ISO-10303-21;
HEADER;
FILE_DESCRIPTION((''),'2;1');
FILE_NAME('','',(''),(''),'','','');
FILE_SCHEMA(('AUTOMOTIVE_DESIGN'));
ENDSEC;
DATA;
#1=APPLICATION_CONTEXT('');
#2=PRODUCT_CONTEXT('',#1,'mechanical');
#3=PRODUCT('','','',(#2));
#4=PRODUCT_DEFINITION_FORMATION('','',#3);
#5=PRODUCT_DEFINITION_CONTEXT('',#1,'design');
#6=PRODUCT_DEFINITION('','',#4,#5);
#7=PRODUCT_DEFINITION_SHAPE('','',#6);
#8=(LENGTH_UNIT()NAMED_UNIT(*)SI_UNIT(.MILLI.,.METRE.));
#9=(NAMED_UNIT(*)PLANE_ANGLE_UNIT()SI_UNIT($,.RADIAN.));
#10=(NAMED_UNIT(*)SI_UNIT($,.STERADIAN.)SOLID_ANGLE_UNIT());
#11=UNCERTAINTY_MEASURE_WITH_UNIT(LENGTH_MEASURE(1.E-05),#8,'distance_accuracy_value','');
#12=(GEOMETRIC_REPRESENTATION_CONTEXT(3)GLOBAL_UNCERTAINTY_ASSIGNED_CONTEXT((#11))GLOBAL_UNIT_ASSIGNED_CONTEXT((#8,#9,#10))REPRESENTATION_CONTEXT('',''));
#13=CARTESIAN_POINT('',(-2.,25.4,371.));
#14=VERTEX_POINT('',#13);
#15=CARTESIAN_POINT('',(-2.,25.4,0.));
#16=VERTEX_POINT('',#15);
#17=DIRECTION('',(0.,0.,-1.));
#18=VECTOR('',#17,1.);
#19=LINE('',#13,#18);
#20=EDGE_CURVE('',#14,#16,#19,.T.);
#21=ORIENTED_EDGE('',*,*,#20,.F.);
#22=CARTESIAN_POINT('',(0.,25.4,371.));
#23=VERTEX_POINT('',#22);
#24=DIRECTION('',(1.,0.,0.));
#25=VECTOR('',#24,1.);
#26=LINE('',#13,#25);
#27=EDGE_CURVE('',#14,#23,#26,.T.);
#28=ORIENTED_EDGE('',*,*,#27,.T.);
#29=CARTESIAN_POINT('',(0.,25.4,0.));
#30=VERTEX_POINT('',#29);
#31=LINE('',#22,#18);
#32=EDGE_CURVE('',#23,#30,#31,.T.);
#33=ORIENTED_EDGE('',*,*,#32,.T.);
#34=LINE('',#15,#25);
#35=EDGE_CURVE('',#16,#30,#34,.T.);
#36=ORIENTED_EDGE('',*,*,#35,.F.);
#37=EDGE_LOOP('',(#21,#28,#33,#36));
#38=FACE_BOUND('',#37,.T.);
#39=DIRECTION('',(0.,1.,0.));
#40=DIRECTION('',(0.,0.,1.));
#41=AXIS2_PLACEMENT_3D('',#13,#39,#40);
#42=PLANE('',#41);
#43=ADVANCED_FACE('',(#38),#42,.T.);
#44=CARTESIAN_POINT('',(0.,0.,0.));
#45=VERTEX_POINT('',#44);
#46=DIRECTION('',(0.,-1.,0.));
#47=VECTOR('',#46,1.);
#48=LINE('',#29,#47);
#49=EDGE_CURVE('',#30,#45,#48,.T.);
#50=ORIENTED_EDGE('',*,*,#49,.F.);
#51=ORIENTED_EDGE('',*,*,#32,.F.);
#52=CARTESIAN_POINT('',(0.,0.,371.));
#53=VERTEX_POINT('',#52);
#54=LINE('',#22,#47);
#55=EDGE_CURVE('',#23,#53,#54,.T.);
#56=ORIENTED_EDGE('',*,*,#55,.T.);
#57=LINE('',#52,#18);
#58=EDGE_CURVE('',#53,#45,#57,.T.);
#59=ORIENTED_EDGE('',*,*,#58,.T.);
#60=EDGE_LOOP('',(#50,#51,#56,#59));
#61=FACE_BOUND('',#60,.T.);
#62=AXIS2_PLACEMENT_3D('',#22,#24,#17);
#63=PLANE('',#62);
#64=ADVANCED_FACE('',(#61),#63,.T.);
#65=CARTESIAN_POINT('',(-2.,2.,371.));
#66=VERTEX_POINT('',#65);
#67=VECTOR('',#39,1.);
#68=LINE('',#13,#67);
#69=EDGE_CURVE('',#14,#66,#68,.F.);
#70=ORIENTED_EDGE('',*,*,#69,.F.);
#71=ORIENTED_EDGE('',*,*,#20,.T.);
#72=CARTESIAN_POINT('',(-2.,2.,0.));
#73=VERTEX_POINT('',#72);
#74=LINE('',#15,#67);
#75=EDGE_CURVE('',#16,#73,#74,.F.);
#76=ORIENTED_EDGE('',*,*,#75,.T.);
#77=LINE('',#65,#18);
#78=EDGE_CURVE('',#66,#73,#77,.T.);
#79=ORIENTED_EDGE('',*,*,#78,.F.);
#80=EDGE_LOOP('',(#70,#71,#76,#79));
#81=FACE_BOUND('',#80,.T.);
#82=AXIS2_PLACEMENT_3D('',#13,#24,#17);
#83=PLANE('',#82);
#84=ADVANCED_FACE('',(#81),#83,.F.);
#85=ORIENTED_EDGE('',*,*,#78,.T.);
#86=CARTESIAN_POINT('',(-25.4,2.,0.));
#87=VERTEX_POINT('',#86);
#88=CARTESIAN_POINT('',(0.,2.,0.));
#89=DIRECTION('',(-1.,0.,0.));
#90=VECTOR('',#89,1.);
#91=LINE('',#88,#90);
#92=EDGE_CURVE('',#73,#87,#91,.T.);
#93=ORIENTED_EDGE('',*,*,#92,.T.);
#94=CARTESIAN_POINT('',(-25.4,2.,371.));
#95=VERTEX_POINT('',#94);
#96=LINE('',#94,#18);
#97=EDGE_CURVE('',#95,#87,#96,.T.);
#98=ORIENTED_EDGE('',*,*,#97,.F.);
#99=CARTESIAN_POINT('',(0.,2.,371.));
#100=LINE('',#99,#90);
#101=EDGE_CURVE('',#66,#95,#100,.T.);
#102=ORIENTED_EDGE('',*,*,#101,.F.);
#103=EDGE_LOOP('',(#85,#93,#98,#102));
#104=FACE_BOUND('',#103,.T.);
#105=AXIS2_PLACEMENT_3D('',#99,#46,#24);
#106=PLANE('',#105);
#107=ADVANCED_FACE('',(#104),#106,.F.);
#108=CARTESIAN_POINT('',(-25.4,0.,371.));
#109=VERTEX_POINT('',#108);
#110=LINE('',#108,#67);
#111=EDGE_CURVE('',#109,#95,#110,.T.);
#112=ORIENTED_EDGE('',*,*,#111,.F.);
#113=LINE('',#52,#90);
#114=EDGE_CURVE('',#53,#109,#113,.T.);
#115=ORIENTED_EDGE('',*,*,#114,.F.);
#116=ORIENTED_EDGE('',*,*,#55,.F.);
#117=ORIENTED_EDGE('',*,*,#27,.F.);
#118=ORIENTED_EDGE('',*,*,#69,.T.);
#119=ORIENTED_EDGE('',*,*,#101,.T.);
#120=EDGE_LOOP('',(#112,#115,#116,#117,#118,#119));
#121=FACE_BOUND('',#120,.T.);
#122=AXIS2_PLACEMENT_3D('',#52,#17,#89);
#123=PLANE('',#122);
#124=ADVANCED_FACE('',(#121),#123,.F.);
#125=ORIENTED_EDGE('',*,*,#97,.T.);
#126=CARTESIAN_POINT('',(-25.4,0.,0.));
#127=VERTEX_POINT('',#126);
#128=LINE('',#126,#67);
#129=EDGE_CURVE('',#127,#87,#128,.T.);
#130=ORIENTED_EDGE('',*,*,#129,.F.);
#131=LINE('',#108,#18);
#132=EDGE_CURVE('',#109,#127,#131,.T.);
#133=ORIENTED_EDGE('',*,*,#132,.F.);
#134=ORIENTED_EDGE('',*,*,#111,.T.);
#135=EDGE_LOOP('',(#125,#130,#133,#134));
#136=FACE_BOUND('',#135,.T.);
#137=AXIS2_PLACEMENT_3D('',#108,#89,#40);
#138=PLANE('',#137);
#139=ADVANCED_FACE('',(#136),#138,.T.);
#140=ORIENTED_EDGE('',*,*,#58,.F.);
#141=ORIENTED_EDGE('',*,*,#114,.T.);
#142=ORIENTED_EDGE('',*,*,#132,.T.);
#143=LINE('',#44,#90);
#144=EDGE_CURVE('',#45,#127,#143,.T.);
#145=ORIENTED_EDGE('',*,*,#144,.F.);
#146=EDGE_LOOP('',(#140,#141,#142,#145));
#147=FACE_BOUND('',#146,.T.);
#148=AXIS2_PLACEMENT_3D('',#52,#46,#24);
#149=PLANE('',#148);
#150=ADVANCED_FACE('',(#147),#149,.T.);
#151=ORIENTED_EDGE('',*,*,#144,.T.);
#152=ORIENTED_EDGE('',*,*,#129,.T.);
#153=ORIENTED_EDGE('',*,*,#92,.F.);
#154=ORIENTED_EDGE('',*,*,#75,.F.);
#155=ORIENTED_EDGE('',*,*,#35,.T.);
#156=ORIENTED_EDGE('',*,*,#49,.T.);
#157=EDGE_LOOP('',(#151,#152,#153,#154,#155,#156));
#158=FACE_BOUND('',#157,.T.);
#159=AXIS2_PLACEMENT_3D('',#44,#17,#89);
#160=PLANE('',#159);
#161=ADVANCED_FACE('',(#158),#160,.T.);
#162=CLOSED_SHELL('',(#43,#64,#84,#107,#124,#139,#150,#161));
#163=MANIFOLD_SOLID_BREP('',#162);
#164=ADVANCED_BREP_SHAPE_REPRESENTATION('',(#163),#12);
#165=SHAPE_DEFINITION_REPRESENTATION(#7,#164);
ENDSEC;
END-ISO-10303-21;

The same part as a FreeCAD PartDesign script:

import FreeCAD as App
import Part
import Sketcher
from FreeCAD import Vector


def add_polygon(sketch, points):
    """Adds a closed chain of lines whose ends are joined by coincident constraints."""
    first, n = sketch.GeometryCount, len(points)
    for a, b in zip(points, points[1:] + points[:1]):
        sketch.addGeometry(Part.LineSegment(App.Vector(*a, 0), App.Vector(*b, 0)), False)
    for i in range(n):
        sketch.addConstraint(Sketcher.Constraint("Coincident", first + i, 2, first + (i + 1) % n, 1))

doc = App.newDocument("Part")
body = doc.addObject("PartDesign::Body", "Body")

sketch1 = doc.addObject("Sketcher::SketchObject", "Sketch")
body.addObject(sketch1)
sketch1.AttachmentSupport = (doc.XY_Plane, [""])
sketch1.MapMode = "FlatFace"
add_polygon(sketch1, [(0, 0), (0, 25.4), (-2, 25.4), (-2, 2), (-25.4, 2), (-25.4, 0)])
sketch1.addConstraint(Sketcher.Constraint("Vertical", 0))
sketch1.addConstraint(Sketcher.Constraint("Horizontal", 1))
sketch1.addConstraint(Sketcher.Constraint("Vertical", 2))
sketch1.addConstraint(Sketcher.Constraint("Horizontal", 3))
sketch1.addConstraint(Sketcher.Constraint("Vertical", 4))
sketch1.addConstraint(Sketcher.Constraint("Horizontal", 5))
sketch1.addConstraint(Sketcher.Constraint("Coincident", 5, 2, -1, 1))
sketch1.addConstraint(Sketcher.Constraint("Equal", 5, 0))
sketch1.addConstraint(Sketcher.Constraint("Equal", 3, 2))
sketch1.addConstraint(Sketcher.Constraint("DistanceX", 1, 2, 1, 1, 2.0))
sketch1.addConstraint(Sketcher.Constraint("DistanceX", 3, 2, 3, 1, 23.4))
pad1 = doc.addObject("PartDesign::Pad", "Pad")
body.addObject(pad1)
pad1.Profile = sketch1
pad1.Length = 371

doc.recompute()
